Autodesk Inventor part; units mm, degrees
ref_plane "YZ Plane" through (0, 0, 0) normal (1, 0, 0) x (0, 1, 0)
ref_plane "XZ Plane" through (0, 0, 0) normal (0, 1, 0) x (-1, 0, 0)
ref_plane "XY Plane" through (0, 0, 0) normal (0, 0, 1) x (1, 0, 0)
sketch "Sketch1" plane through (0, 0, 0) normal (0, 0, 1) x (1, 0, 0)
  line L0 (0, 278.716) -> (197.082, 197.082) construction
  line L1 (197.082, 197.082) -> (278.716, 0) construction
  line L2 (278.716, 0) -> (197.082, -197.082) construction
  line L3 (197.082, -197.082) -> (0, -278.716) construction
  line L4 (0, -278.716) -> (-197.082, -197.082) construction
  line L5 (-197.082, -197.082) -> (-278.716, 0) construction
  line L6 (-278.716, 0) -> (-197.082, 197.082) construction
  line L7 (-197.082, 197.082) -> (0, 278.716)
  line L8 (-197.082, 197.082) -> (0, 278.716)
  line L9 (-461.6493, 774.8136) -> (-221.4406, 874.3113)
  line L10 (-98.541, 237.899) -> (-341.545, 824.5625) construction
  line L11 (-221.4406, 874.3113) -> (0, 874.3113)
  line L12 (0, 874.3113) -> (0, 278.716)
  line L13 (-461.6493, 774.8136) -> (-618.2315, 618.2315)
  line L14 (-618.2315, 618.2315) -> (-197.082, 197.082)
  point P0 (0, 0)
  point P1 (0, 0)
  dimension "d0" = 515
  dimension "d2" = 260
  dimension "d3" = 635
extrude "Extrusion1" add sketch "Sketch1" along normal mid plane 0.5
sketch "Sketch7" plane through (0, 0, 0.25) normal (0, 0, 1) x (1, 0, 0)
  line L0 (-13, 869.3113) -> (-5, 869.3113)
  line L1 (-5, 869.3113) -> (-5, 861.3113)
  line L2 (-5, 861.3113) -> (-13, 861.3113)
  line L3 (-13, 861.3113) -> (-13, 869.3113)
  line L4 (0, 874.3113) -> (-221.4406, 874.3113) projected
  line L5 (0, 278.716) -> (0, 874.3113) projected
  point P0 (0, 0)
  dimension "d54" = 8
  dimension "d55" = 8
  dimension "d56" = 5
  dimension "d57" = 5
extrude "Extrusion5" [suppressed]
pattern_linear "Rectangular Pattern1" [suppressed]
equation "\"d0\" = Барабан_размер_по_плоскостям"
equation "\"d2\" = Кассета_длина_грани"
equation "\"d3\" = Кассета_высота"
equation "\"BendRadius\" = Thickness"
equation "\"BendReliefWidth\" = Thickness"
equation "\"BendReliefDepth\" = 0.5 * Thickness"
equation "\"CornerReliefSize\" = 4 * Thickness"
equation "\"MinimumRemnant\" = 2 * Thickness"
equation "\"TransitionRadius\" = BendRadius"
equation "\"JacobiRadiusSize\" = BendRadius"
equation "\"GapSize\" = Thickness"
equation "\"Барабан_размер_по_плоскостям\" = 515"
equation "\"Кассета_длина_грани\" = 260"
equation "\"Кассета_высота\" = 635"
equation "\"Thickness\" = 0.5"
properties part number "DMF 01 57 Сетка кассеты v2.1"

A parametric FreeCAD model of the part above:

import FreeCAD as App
import Part
import Sketcher
Q = App.Units.Quantity


def add_polygon(sketch, points):
    """Adds a closed chain of lines whose ends are joined by coincident constraints."""
    first, n = sketch.GeometryCount, len(points)
    for a, b in zip(points, points[1:] + points[:1]):
        sketch.addGeometry(Part.LineSegment(App.Vector(*a, 0), App.Vector(*b, 0)), False)
    for i in range(n):
        sketch.addConstraint(Sketcher.Constraint("Coincident", first + i, 2, first + (i + 1) % n, 1))

doc = App.newDocument("Part")
body = doc.addObject("PartDesign::Body", "Body")

sketch1 = body.newObject("Sketcher::SketchObject", "Sketch")
sketch1.AttachmentSupport = (doc.getObject("XY_Plane"), [""])
sketch1.MapMode = "FlatFace"
add_polygon(sketch1, [(-618, 618), (-197, 197), (0, 279), (0, 874), (-221, 874), (-462, 775)])
sketch1.addConstraint([
    Sketcher.Constraint("Vertical", 2),
    Sketcher.Constraint("Horizontal", 3),
    Sketcher.Constraint("PointOnObject", 1, 2, -2),
    Sketcher.Constraint("Parallel", 1, 4),
    Sketcher.Constraint("Perpendicular", 0, 5),
    Sketcher.Constraint("Distance", 4, Q("260 mm")),
    Sketcher.Constraint("Angle", 0, Q("-45 deg")),
    Sketcher.Constraint("Angle", 1, Q("22.5 deg")),
    Sketcher.Constraint("Distance", 1, Q("213.32 mm")),
    Sketcher.Constraint("DistanceX", 3, 2, 3, 1, Q("221.4406 mm")),
    Sketcher.Constraint("DistanceY", 2, 1, 2, 2, Q("595.5953 mm")),
    Sketcher.Constraint("DistanceY", -1, 1, 0, 2, Q("197.082 mm")),
])
pad1 = body.newObject("PartDesign::Pad", "Pad")
pad1.Profile = sketch1
pad1.Length = 0.5
pad1.Midplane = True

doc.recompute()
